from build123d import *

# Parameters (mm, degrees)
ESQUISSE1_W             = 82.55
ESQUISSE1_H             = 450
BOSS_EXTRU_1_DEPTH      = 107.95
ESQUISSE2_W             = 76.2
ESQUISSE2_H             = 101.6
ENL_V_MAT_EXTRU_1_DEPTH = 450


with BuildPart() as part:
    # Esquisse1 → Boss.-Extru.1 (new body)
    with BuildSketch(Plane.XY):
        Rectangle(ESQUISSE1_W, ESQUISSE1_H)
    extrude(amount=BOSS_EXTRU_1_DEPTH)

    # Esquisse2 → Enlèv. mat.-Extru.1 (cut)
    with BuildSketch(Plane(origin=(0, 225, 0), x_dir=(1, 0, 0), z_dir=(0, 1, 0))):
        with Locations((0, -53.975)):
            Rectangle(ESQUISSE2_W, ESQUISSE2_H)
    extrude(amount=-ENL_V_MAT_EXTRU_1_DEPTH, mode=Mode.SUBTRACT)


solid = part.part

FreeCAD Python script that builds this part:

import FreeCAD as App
import Part
import Sketcher
Q = App.Units.Quantity

doc = App.newDocument("Part")
params = doc.addObject("Spreadsheet::Sheet", "Params")
for row, (alias, value) in enumerate([
    ("sketch1_width", "3.25 in"),
    ("pad1_length", "4.25 in"),
    ("sketch2_width", "3 in"),
    ("sketch2_height", "4 in"),
    ("pocket1_length", "450 mm"),
], start=1):
    params.set(f"A{row}", alias)
    params.set(f"B{row}", "=" + value)
    params.setAlias(f"B{row}", alias)

body = doc.addObject("PartDesign::Body", "Body")

sketch1 = body.newObject("Sketcher::SketchObject", "Sketch")
sketch1.AttachmentSupport = (doc.getObject("XY_Plane"), [""])
sketch1.MapMode = "FlatFace"
sketch1.addGeometry([
    Part.LineSegment(App.Vector(-41, 225, 0), App.Vector(-41, -225, 0)),
    Part.LineSegment(App.Vector(-41, -225, 0), App.Vector(41, -225, 0)),
    Part.LineSegment(App.Vector(41, -225, 0), App.Vector(41, 225, 0)),
    Part.LineSegment(App.Vector(41, 225, 0), App.Vector(-41, 225, 0)),
], False)
sketch1.addConstraint([
    Sketcher.Constraint("Coincident", 0, 2, 1, 1),
    Sketcher.Constraint("Coincident", 1, 2, 2, 1),
    Sketcher.Constraint("Coincident", 2, 2, 3, 1),
    Sketcher.Constraint("Coincident", 3, 2, 0, 1),
    Sketcher.Constraint("Vertical", 0),
    Sketcher.Constraint("Horizontal", 1),
    Sketcher.Constraint("Vertical", 2),
    Sketcher.Constraint("Horizontal", 3),
    Sketcher.Constraint("Symmetric", 0, 2, 2, 2, -1, 1),
    Sketcher.Constraint("DistanceX", 1, 1, 1, 2, Q("3.25 in")),
    Sketcher.Constraint("DistanceY", 0, 2, 0, 1, Q("450 mm")),
])
sketch1.setExpression("Constraints[9]", "Params.sketch1_width")
pad1 = body.newObject("PartDesign::Pad", "Pad")
pad1.Profile = sketch1
pad1.setExpression("Length", "Params.pad1_length")

sketch2 = body.newObject("Sketcher::SketchObject", "Sketch001")
sketch2.AttachmentSupport = (doc.getObject("XZ_Plane"), [""])
sketch2.MapMode = "FlatFace"
sketch2.AttachmentOffset = App.Placement(App.Vector(0, 0, -225), App.Rotation())
sketch2.addGeometry([
    Part.LineSegment(App.Vector(-38, 3, 0), App.Vector(-38, 105, 0)),
    Part.LineSegment(App.Vector(-38, 105, 0), App.Vector(38, 105, 0)),
    Part.LineSegment(App.Vector(38, 105, 0), App.Vector(38, 3, 0)),
    Part.LineSegment(App.Vector(38, 3, 0), App.Vector(-38, 3, 0)),
], False)
sketch2.addConstraint([
    Sketcher.Constraint("Coincident", 0, 2, 1, 1),
    Sketcher.Constraint("Coincident", 1, 2, 2, 1),
    Sketcher.Constraint("Coincident", 2, 2, 3, 1),
    Sketcher.Constraint("Coincident", 3, 2, 0, 1),
    Sketcher.Constraint("Vertical", 0),
    Sketcher.Constraint("Horizontal", 1),
    Sketcher.Constraint("Vertical", 2),
    Sketcher.Constraint("Horizontal", 3),
    Sketcher.Constraint("DistanceX", 1, 1, 1, 2, Q("3 in")),
    Sketcher.Constraint("DistanceY", 0, 1, 0, 2, Q("4 in")),
    Sketcher.Constraint("DistanceX", 0, 2, -1, 1, Q("1.5 in")),
    Sketcher.Constraint("DistanceY", -1, 1, 0, 2, Q("4.125 in")),
])
sketch2.setExpression("Constraints[8]", "Params.sketch2_width")
sketch2.setExpression("Constraints[9]", "Params.sketch2_height")
pocket1 = body.newObject("PartDesign::Pocket", "Pocket")
pocket1.Profile = sketch2
pocket1.setExpression("Length", "Params.pocket1_length")
pocket1.Reversed = True

doc.recompute()
